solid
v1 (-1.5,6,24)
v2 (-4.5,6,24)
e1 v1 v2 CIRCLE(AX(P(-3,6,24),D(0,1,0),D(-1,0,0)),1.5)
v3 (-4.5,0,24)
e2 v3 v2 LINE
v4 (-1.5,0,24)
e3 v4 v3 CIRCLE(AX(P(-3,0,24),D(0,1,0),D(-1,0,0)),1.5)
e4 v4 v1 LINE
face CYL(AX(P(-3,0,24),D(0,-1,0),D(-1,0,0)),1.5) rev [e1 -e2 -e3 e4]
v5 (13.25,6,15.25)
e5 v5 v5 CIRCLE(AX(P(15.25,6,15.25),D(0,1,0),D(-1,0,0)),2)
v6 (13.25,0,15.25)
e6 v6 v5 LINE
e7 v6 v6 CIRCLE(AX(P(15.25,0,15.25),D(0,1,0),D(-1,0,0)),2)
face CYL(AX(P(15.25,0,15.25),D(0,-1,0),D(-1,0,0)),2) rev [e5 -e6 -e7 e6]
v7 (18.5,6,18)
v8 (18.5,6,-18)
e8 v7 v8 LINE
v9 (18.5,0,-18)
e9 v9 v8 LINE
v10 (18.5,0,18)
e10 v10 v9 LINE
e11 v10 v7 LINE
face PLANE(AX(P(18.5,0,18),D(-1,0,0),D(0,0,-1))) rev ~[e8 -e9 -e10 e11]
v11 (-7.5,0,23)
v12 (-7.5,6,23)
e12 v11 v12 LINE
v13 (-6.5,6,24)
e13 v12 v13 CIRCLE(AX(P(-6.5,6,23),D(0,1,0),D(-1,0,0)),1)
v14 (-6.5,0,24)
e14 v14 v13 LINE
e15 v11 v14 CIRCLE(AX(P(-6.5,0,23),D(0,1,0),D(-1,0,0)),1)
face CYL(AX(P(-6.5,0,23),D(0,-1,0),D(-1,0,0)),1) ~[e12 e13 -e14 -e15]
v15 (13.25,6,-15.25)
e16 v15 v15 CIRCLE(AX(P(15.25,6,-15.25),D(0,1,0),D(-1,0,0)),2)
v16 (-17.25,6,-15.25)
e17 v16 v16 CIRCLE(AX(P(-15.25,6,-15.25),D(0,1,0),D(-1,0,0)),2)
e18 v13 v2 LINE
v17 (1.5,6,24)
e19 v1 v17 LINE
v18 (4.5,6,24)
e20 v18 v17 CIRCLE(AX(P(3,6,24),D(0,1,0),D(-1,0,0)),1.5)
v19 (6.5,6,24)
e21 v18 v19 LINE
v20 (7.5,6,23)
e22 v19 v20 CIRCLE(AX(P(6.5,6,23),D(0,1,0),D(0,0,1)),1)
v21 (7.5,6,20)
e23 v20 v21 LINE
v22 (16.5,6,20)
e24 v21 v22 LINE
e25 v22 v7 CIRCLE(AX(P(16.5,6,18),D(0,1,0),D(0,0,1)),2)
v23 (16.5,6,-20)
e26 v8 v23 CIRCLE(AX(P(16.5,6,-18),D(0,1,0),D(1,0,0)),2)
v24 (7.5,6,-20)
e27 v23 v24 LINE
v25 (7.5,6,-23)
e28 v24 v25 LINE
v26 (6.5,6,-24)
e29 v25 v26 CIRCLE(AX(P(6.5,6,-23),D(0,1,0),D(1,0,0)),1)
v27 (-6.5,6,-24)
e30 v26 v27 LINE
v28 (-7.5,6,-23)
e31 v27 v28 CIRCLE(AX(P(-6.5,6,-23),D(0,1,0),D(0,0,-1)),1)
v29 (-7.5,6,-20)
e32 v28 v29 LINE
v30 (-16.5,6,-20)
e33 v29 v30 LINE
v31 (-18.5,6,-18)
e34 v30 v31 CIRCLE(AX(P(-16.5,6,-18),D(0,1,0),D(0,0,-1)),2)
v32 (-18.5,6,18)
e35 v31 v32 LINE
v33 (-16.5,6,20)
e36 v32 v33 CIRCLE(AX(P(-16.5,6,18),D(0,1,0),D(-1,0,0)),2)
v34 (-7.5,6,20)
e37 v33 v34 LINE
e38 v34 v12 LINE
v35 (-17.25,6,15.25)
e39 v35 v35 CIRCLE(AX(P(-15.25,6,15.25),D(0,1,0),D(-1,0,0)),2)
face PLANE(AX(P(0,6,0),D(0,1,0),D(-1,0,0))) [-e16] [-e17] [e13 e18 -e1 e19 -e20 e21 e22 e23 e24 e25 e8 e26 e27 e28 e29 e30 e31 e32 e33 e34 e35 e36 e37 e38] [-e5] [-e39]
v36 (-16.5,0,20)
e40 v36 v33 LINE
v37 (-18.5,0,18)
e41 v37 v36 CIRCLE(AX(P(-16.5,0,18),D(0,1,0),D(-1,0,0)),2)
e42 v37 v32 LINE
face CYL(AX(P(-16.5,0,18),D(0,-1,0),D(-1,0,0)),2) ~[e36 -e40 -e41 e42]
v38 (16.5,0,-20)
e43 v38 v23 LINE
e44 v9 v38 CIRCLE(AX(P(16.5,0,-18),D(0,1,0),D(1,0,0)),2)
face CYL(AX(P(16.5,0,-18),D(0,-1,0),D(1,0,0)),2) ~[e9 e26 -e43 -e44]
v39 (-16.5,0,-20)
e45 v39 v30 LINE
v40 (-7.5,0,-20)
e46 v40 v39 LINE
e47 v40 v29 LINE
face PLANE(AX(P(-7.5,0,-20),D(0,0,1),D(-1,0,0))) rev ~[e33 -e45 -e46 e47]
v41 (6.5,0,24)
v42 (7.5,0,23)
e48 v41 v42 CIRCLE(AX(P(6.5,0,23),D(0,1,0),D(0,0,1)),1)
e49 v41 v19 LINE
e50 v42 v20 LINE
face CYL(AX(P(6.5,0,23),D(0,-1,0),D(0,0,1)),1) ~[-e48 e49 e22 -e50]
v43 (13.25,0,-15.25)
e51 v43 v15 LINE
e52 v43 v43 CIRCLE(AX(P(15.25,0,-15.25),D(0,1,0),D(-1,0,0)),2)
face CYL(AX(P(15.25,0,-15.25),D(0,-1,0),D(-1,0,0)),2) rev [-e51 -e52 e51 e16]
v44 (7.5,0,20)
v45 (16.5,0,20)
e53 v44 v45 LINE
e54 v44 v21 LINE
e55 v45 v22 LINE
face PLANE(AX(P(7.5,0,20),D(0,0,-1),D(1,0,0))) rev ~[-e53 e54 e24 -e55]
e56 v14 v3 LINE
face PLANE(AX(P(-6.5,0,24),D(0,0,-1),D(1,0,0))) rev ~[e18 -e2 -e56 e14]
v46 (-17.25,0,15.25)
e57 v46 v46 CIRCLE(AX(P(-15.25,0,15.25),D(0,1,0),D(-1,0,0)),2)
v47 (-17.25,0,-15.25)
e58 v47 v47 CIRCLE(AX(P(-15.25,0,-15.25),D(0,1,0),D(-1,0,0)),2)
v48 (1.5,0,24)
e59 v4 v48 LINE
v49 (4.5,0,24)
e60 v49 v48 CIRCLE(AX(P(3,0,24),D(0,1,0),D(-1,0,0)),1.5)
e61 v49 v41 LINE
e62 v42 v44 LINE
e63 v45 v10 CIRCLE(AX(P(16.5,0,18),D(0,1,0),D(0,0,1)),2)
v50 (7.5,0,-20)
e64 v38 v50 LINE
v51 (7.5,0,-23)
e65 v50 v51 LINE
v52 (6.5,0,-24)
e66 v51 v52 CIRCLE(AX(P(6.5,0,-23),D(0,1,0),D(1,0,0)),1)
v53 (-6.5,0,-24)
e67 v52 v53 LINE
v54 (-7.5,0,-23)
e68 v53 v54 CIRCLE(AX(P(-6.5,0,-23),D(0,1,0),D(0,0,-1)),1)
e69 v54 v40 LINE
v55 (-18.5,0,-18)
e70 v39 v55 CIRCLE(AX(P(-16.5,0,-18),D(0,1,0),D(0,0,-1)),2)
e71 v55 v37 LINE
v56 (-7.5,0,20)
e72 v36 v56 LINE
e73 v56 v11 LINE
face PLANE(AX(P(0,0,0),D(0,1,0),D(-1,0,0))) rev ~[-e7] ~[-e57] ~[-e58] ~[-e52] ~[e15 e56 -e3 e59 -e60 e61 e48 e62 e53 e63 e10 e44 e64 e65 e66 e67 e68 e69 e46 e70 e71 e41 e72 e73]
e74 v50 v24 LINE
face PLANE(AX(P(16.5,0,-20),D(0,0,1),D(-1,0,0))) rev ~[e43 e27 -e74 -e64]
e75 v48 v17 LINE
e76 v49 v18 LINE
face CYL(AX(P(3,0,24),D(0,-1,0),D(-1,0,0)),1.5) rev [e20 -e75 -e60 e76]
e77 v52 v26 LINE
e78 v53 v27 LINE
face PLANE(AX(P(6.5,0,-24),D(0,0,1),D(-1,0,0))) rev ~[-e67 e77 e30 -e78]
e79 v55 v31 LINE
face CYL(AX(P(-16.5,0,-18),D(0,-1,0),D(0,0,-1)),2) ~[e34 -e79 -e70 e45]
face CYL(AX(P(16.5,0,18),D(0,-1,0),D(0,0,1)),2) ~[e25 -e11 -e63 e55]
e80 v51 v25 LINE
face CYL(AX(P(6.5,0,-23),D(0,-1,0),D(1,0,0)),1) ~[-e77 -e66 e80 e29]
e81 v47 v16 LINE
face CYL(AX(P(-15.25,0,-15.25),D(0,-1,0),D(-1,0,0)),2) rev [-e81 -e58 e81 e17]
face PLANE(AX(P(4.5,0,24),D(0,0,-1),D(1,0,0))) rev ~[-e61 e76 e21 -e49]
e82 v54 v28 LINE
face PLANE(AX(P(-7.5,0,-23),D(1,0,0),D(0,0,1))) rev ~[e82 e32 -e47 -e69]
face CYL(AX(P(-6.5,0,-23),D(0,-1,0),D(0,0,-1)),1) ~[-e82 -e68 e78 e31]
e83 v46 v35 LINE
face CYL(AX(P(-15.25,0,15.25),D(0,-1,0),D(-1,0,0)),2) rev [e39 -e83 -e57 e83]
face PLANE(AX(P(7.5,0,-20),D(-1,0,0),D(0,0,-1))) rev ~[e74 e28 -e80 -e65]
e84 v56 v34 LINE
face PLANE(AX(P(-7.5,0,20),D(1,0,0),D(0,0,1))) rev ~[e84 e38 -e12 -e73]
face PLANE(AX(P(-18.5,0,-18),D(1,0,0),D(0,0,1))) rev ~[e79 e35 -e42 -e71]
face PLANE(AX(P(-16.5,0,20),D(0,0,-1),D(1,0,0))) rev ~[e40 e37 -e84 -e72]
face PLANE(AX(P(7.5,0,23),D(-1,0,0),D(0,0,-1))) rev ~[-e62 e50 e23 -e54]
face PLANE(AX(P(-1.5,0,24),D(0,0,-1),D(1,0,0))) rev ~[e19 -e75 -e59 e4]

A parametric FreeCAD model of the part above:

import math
import FreeCAD as App
import Part
import Sketcher
from FreeCAD import Vector

doc = App.newDocument("Part")
body = doc.addObject("PartDesign::Body", "Body")

# Sketch on XZ plane
sketch1 = body.newObject("Sketcher::SketchObject", "Sketch")
sketch1.AttachmentSupport = (doc.getObject("XZ_Plane"), [""])
sketch1.MapMode = "FlatFace"
sketch1.addGeometry(Part.ArcOfCircle(Part.Circle(Vector(-16.5, 18, 0), Vector(0, 0, 1), 2), math.radians(90), math.radians(180)), False)
sketch1.addGeometry(Part.LineSegment(Vector(-16.5, 20, 0), Vector(-7.5, 20, 0)), False)
sketch1.addGeometry(Part.LineSegment(Vector(-7.5, 20, 0), Vector(-7.5, 23, 0)), False)
sketch1.addGeometry(Part.ArcOfCircle(Part.Circle(Vector(-6.5, 23, 0), Vector(0, 0, 1), 1), math.radians(90), math.radians(180)), False)
sketch1.addGeometry(Part.LineSegment(Vector(-6.5, 24, 0), Vector(-4.5, 24, 0)), False)
sketch1.addGeometry(Part.ArcOfCircle(Part.Circle(Vector(-3, 24, 0), Vector(0, 0, 1), 1.5), math.radians(180), math.radians(360)), False)
sketch1.addGeometry(Part.LineSegment(Vector(-1.5, 24, 0), Vector(1.5, 24, 0)), False)
sketch1.addGeometry(Part.ArcOfCircle(Part.Circle(Vector(3, 24, 0), Vector(0, 0, 1), 1.5), math.radians(180), math.radians(360)), False)
sketch1.addGeometry(Part.LineSegment(Vector(4.5, 24, 0), Vector(6.5, 24, 0)), False)
sketch1.addGeometry(Part.ArcOfCircle(Part.Circle(Vector(6.5, 23, 0), Vector(0, 0, 1), 1), math.radians(0), math.radians(90)), False)
sketch1.addGeometry(Part.LineSegment(Vector(7.5, 23, 0), Vector(7.5, 20, 0)), False)
sketch1.addGeometry(Part.LineSegment(Vector(7.5, 20, 0), Vector(16.5, 20, 0)), False)
sketch1.addGeometry(Part.ArcOfCircle(Part.Circle(Vector(16.5, 18, 0), Vector(0, 0, 1), 2), math.radians(0), math.radians(90)), False)
sketch1.addGeometry(Part.LineSegment(Vector(18.5, 18, 0), Vector(18.5, -18, 0)), False)
sketch1.addGeometry(Part.ArcOfCircle(Part.Circle(Vector(16.5, -18, 0), Vector(0, 0, 1), 2), math.radians(-90), math.radians(0)), False)
sketch1.addGeometry(Part.LineSegment(Vector(16.5, -20, 0), Vector(7.5, -20, 0)), False)
sketch1.addGeometry(Part.LineSegment(Vector(7.5, -20, 0), Vector(7.5, -23, 0)), False)
sketch1.addGeometry(Part.ArcOfCircle(Part.Circle(Vector(6.5, -23, 0), Vector(0, 0, 1), 1), math.radians(-90), math.radians(0)), False)
sketch1.addGeometry(Part.LineSegment(Vector(6.5, -24, 0), Vector(-6.5, -24, 0)), False)
sketch1.addGeometry(Part.ArcOfCircle(Part.Circle(Vector(-6.5, -23, 0), Vector(0, 0, 1), 1), math.radians(180), math.radians(270)), False)
sketch1.addGeometry(Part.LineSegment(Vector(-7.5, -23, 0), Vector(-7.5, -20, 0)), False)
sketch1.addGeometry(Part.LineSegment(Vector(-7.5, -20, 0), Vector(-16.5, -20, 0)), False)
sketch1.addGeometry(Part.ArcOfCircle(Part.Circle(Vector(-16.5, -18, 0), Vector(0, 0, 1), 2), math.radians(180), math.radians(270)), False)
sketch1.addGeometry(Part.LineSegment(Vector(-18.5, -18, 0), Vector(-18.5, 18, 0)), False)
sketch1.addGeometry(Part.Circle(Vector(15.25, -15.25, 0), Vector(0, 0, 1), 2), False)
sketch1.addGeometry(Part.Circle(Vector(-15.25, -15.25, 0), Vector(0, 0, 1), 2), False)
sketch1.addGeometry(Part.Circle(Vector(15.25, 15.25, 0), Vector(0, 0, 1), 2), False)
sketch1.addGeometry(Part.Circle(Vector(-15.25, 15.25, 0), Vector(0, 0, 1), 2), False)
sketch1.addConstraint(Sketcher.Constraint("Tangent", 0, 1, 1, 1))
sketch1.addConstraint(Sketcher.Constraint("Coincident", 1, 2, 2, 1))
sketch1.addConstraint(Sketcher.Constraint("Tangent", 2, 2, 3, 2))
sketch1.addConstraint(Sketcher.Constraint("Tangent", 3, 1, 4, 1))
sketch1.addConstraint(Sketcher.Constraint("Coincident", 4, 2, 5, 1))
sketch1.addConstraint(Sketcher.Constraint("Coincident", 5, 2, 6, 1))
sketch1.addConstraint(Sketcher.Constraint("Coincident", 6, 2, 7, 1))
sketch1.addConstraint(Sketcher.Constraint("Coincident", 7, 2, 8, 1))
sketch1.addConstraint(Sketcher.Constraint("Tangent", 8, 2, 9, 2))
sketch1.addConstraint(Sketcher.Constraint("Tangent", 9, 1, 10, 1))
sketch1.addConstraint(Sketcher.Constraint("Coincident", 10, 2, 11, 1))
sketch1.addConstraint(Sketcher.Constraint("Tangent", 11, 2, 12, 2))
sketch1.addConstraint(Sketcher.Constraint("Tangent", 12, 1, 13, 1))
sketch1.addConstraint(Sketcher.Constraint("Tangent", 13, 2, 14, 2))
sketch1.addConstraint(Sketcher.Constraint("Tangent", 14, 1, 15, 1))
sketch1.addConstraint(Sketcher.Constraint("Coincident", 15, 2, 16, 1))
sketch1.addConstraint(Sketcher.Constraint("Tangent", 16, 2, 17, 2))
sketch1.addConstraint(Sketcher.Constraint("Tangent", 17, 1, 18, 1))
sketch1.addConstraint(Sketcher.Constraint("Tangent", 18, 2, 19, 2))
sketch1.addConstraint(Sketcher.Constraint("Tangent", 19, 1, 20, 1))
sketch1.addConstraint(Sketcher.Constraint("Coincident", 20, 2, 21, 1))
sketch1.addConstraint(Sketcher.Constraint("Tangent", 21, 2, 22, 2))
sketch1.addConstraint(Sketcher.Constraint("Tangent", 22, 1, 23, 1))
sketch1.addConstraint(Sketcher.Constraint("Tangent", 23, 2, 0, 2))
sketch1.addConstraint(Sketcher.Constraint("Horizontal", 1))
sketch1.addConstraint(Sketcher.Constraint("Vertical", 2))
sketch1.addConstraint(Sketcher.Constraint("Horizontal", 4))
sketch1.addConstraint(Sketcher.Constraint("Horizontal", 6))
sketch1.addConstraint(Sketcher.Constraint("Horizontal", 8))
sketch1.addConstraint(Sketcher.Constraint("Vertical", 10))
sketch1.addConstraint(Sketcher.Constraint("Horizontal", 11))
sketch1.addConstraint(Sketcher.Constraint("Vertical", 13))
sketch1.addConstraint(Sketcher.Constraint("Horizontal", 15))
sketch1.addConstraint(Sketcher.Constraint("Vertical", 16))
sketch1.addConstraint(Sketcher.Constraint("Horizontal", 18))
sketch1.addConstraint(Sketcher.Constraint("Vertical", 20))
sketch1.addConstraint(Sketcher.Constraint("Horizontal", 21))
sketch1.addConstraint(Sketcher.Constraint("Vertical", 23))
sketch1.addConstraint(Sketcher.Constraint("Equal", 5, 7))
sketch1.addConstraint(Sketcher.Constraint("Equal", 3, 9))
sketch1.addConstraint(Sketcher.Constraint("Equal", 0, 12))
sketch1.addConstraint(Sketcher.Constraint("Equal", 12, 14))
sketch1.addConstraint(Sketcher.Constraint("Equal", 9, 17))
sketch1.addConstraint(Sketcher.Constraint("Equal", 17, 19))
sketch1.addConstraint(Sketcher.Constraint("Equal", 14, 22))
sketch1.addConstraint(Sketcher.Constraint("Equal", 22, 24))
sketch1.addConstraint(Sketcher.Constraint("Equal", 24, 25))
sketch1.addConstraint(Sketcher.Constraint("Equal", 25, 26))
sketch1.addConstraint(Sketcher.Constraint("Equal", 26, 27))
sketch1.addConstraint(Sketcher.Constraint("Symmetric", 0, 3, 14, 3, -1, 1))
sketch1.addConstraint(Sketcher.Constraint("Symmetric", 3, 3, 17, 3, -1, 1))
sketch1.addConstraint(Sketcher.Constraint("Symmetric", 9, 3, 19, 3, -1, 1))
sketch1.addConstraint(Sketcher.Constraint("Symmetric", 25, 3, 26, 3, -1, 1))
sketch1.addConstraint(Sketcher.Constraint("Symmetric", 24, 3, 27, 3, -1, 1))
sketch1.addConstraint(Sketcher.Constraint("Symmetric", 5, 3, 7, 3, -2))
sketch1.addConstraint(Sketcher.Constraint("Symmetric", 24, 3, 25, 3, -2))
sketch1.addConstraint(Sketcher.Constraint("Symmetric", 1, 2, 10, 2, -2))
sketch1.addConstraint(Sketcher.Constraint("Horizontal", 14, 3, 22, 3))
sketch1.addConstraint(Sketcher.Constraint("Horizontal", 7, 3, 3, 1))
sketch1.addConstraint(Sketcher.Constraint("Horizontal", 4, 2, 5, 2))
sketch1.addConstraint(Sketcher.Constraint("Equal", 6, 2))
sketch1.addConstraint(Sketcher.Constraint("Diameter", 24, 4.0))
sketch1.addConstraint(Sketcher.Constraint("Radius", 3, 1.0))
sketch1.addConstraint(Sketcher.Constraint("Radius", 5, 1.5))
sketch1.addConstraint(Sketcher.Constraint("DistanceX", 4, 1, 4, 2, 2.0))
sketch1.addConstraint(Sketcher.Constraint("DistanceX", 6, 1, 6, 2, 3.0))
sketch1.addConstraint(Sketcher.Constraint("DistanceY", -1, 1, 0, 1, 20.0))
sketch1.addConstraint(Sketcher.Constraint("DistanceX", -1, 1, 12, 1, 18.5))
sketch1.addConstraint(Sketcher.Constraint("DistanceX", 25, 3, 24, 3, 30.5))
sketch1.addConstraint(Sketcher.Constraint("DistanceY", 27, 3, 0, 1, 4.75))
pad1 = body.newObject("PartDesign::Pad", "Pad")
pad1.Profile = sketch1
pad1.Length = 6
pad1.Reversed = True

doc.recompute()
